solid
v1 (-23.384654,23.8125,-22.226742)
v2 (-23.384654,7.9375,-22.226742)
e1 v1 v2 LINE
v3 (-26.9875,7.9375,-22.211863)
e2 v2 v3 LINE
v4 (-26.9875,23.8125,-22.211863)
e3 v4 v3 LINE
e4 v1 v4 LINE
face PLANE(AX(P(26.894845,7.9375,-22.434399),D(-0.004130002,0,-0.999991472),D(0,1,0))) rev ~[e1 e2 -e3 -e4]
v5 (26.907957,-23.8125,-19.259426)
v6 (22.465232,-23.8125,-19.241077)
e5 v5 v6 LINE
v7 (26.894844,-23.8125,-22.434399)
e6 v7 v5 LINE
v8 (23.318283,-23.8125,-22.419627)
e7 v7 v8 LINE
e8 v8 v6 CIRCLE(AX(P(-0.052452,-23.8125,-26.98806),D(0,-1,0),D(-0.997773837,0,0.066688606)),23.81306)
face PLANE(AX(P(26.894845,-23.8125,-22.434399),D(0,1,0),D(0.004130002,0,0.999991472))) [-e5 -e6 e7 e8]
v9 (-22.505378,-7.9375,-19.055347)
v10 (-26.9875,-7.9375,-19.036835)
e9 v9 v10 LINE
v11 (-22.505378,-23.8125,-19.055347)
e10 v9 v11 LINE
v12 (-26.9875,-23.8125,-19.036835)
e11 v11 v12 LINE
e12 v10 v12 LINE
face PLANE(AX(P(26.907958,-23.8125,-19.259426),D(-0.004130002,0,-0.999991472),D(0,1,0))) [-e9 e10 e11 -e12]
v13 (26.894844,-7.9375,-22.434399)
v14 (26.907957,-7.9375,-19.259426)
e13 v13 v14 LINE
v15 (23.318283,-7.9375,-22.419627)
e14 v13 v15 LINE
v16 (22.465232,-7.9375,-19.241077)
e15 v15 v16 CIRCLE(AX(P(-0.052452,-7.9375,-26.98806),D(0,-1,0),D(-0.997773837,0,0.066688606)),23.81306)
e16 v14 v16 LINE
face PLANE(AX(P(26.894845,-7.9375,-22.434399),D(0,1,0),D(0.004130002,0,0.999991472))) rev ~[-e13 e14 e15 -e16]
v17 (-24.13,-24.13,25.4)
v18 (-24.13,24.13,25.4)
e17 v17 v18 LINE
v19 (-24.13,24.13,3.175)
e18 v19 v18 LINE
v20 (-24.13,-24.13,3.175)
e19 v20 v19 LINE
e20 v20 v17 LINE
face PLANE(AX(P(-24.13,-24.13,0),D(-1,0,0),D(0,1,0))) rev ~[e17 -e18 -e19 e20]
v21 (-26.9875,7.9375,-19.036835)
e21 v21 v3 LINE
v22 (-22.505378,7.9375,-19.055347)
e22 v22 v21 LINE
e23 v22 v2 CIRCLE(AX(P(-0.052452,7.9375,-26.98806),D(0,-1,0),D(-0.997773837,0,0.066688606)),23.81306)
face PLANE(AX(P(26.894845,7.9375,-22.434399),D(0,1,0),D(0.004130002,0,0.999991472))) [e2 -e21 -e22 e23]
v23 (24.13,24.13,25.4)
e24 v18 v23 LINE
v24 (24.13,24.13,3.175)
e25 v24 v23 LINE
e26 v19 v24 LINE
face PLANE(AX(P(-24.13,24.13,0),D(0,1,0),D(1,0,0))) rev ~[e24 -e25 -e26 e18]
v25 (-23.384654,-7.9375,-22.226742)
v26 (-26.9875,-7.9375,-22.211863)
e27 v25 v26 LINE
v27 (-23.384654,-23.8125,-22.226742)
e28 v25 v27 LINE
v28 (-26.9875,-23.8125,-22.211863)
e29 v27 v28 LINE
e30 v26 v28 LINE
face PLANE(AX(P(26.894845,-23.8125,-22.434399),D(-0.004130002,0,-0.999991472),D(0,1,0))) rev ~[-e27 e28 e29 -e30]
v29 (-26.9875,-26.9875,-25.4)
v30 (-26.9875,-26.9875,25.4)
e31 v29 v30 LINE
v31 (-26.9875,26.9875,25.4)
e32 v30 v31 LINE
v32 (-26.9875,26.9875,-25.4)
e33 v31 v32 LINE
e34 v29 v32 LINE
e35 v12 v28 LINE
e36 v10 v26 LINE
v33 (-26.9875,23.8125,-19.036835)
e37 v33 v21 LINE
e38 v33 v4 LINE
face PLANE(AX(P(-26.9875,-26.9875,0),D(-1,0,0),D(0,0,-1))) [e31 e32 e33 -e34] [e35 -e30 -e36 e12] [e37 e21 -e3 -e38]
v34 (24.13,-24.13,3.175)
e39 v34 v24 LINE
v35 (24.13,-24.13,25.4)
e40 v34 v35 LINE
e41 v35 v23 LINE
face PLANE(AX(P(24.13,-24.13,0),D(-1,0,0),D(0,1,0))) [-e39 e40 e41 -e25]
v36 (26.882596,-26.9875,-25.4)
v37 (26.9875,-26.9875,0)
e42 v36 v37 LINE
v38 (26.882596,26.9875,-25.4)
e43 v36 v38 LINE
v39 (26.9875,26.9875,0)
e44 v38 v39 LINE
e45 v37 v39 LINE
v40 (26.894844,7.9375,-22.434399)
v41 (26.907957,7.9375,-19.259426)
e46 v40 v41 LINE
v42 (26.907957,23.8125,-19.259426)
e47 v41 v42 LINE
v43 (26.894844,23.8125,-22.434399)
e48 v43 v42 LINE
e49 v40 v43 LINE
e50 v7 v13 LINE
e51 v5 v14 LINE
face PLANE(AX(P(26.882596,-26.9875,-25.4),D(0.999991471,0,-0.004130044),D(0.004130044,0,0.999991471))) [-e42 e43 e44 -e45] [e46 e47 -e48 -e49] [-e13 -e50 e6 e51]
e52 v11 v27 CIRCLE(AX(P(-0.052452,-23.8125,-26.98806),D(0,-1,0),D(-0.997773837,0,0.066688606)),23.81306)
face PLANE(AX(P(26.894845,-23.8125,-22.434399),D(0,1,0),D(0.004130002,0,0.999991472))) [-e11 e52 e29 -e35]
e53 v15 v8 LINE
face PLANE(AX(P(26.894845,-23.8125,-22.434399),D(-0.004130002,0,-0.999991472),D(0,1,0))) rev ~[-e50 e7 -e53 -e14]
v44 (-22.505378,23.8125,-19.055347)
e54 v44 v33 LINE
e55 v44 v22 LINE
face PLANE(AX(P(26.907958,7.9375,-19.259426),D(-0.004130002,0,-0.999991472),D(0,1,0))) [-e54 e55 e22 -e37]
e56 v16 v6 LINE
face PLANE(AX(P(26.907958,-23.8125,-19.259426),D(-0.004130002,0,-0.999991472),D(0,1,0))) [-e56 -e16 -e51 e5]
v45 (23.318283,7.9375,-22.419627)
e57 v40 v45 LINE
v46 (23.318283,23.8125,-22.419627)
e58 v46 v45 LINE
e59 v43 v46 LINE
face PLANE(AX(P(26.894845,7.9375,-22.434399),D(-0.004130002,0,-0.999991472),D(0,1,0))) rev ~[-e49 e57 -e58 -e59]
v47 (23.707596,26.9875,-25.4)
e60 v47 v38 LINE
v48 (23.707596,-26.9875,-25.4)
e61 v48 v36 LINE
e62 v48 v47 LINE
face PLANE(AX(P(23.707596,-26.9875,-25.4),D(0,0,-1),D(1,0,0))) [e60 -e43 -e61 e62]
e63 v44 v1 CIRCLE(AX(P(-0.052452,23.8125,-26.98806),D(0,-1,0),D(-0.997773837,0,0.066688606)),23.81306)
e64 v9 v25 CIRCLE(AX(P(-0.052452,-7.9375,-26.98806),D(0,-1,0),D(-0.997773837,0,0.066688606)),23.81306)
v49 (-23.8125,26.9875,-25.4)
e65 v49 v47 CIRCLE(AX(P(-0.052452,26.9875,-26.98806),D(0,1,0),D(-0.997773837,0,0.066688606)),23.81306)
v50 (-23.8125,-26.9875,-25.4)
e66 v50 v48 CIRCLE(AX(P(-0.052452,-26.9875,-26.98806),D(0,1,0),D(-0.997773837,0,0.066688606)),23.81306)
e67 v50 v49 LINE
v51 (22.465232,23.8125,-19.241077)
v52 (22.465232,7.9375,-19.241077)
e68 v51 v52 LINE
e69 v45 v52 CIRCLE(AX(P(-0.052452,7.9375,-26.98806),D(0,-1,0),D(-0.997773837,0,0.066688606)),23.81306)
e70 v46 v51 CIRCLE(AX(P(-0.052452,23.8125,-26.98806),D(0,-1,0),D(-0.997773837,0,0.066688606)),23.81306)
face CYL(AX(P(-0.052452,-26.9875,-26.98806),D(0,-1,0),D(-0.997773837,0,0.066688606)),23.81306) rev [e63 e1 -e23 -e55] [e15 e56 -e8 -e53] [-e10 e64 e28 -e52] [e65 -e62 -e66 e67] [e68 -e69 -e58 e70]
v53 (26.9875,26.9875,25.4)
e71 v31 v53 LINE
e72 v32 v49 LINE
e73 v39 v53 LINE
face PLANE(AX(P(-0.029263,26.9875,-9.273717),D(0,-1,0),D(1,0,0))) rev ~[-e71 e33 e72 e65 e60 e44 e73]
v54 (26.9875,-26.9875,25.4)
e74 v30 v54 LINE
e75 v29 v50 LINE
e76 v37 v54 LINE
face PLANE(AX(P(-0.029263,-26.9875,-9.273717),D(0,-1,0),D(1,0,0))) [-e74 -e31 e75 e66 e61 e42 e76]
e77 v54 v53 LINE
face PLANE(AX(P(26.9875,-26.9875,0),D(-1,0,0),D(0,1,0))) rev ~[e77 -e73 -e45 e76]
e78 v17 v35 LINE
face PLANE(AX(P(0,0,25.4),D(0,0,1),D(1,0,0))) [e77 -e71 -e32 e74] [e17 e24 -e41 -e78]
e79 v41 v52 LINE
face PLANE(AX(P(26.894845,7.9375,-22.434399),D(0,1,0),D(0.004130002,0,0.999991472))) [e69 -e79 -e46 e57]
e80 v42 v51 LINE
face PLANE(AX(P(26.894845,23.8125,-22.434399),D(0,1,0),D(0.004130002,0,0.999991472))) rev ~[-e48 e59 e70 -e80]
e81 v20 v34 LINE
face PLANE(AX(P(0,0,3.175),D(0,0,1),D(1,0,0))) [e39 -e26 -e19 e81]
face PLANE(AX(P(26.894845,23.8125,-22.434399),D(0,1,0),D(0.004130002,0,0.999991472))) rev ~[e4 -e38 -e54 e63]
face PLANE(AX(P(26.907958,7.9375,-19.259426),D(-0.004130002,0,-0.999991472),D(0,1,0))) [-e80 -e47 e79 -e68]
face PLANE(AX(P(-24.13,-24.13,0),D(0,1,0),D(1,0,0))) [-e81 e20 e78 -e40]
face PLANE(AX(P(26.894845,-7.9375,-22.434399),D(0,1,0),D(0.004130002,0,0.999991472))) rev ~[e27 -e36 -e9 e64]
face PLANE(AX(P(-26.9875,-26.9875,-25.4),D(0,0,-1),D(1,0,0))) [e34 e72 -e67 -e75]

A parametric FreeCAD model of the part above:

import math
import FreeCAD as App
import Part
import Sketcher

V = App.Vector
Q = App.Units.Quantity


def add_polygon(sketch, points):
    """Adds a closed chain of lines whose ends are joined by coincident constraints."""
    first, n = sketch.GeometryCount, len(points)
    for a, b in zip(points, points[1:] + points[:1]):
        sketch.addGeometry(Part.LineSegment(App.Vector(*a, 0), App.Vector(*b, 0)), False)
    for i in range(n):
        sketch.addConstraint(Sketcher.Constraint("Coincident", first + i, 2, first + (i + 1) % n, 1))

doc = App.newDocument("Part")
body = doc.addObject("PartDesign::Body", "Body")

# Sketch on XY plane
sketch1 = body.newObject("Sketcher::SketchObject", "Sketch")
sketch1.AttachmentSupport = (doc.getObject("XY_Plane"), [""])
sketch1.MapMode = "FlatFace"
add_polygon(sketch1, [(-24, 24), (-24, -24), (24, -24), (24, 24)])  # lines 0-3
sketch1.addConstraint([
    Sketcher.Constraint("Vertical", 0),
    Sketcher.Constraint("Horizontal", 1),
    Sketcher.Constraint("Vertical", 2),
    Sketcher.Constraint("Horizontal", 3),
    Sketcher.Constraint("Symmetric", 0, 2, 2, 2, -1, 1),
    Sketcher.Constraint("Equal", 3, 0),
    Sketcher.Constraint("DistanceX", 1, 1, 1, 2, Q("1.9 in")),
])
pad1 = body.newObject("PartDesign::Pad", "Pad")
pad1.Profile = sketch1
pad1.Length = Q("0.125 in")

# Sketch on XY plane
sketch2 = body.newObject("Sketcher::SketchObject", "Sketch001")
sketch2.AttachmentSupport = (doc.getObject("XY_Plane"), [""])
sketch2.MapMode = "FlatFace"
add_polygon(sketch2, [(-27, 27), (-27, -27), (27, -27), (27, 27)])  # lines 0-3
add_polygon(sketch2, [(24, -24), (-24, -24), (-24, 24), (24, 24)])  # lines 4-7
sketch2.addConstraint([
    Sketcher.Constraint("Vertical", 0),
    Sketcher.Constraint("Horizontal", 1),
    Sketcher.Constraint("Vertical", 2),
    Sketcher.Constraint("Horizontal", 3),
    Sketcher.Constraint("Horizontal", 4),
    Sketcher.Constraint("Vertical", 5),
    Sketcher.Constraint("Horizontal", 6),
    Sketcher.Constraint("Vertical", 7),
    Sketcher.Constraint("Symmetric", 0, 2, 2, 2, -1, 1),
    Sketcher.Constraint("Symmetric", 4, 2, 6, 2, -1, 1),
    Sketcher.Constraint("Equal", 3, 0),
    Sketcher.Constraint("Equal", 6, 5),
    Sketcher.Constraint("DistanceX", 4, 2, 4, 1, Q("1.9 in")),
    Sketcher.Constraint("DistanceX", 1, 1, 1, 2, Q("2.125 in")),
])
pad2 = body.newObject("PartDesign::Pad", "Pad001")
pad2.Profile = sketch2
pad2.Length = Q("1 in")

# Sketch on XZ plane
sketch3 = body.newObject("Sketcher::SketchObject", "Sketch002")
sketch3.AttachmentSupport = (doc.getObject("XZ_Plane"), [""])
sketch3.MapMode = "FlatFace"
sketch3.AttachmentOffset = App.Placement(V(0, 0, 1.0625 * 25.4), App.Rotation())
sketch3.addGeometry([
    Part.LineSegment(V(27, 0, 0), V(-27, 0, 0)),  # 0
    Part.LineSegment(V(-27, 0, 0), V(-27, -25.4, 0)),  # 1
    Part.LineSegment(V(-27, -25.4, 0), V(-23.8, -25.4, 0)),  # 2
    Part.ArcOfCircle(Part.Circle(V(-0.1, -27, 0), V(0, 0, 1), 23.8), math.radians(4), math.radians(176)),  # 3
    Part.LineSegment(V(23.7, -25.4, 0), V(26.9, -25.4, 0)),  # 4
    Part.LineSegment(V(26.9, -25.4, 0), V(27, 0, 0)),  # 5
], False)
sketch3.addConstraint([
    Sketcher.Constraint("Coincident", 0, 2, 1, 1),
    Sketcher.Constraint("Coincident", 1, 2, 2, 1),
    Sketcher.Constraint("Coincident", 2, 2, 3, 2),
    Sketcher.Constraint("Coincident", 3, 1, 4, 1),
    Sketcher.Constraint("Coincident", 4, 2, 5, 1),
    Sketcher.Constraint("Coincident", 5, 2, 0, 1),
    Sketcher.Constraint("Horizontal", 0),
    Sketcher.Constraint("Vertical", 1),
    Sketcher.Constraint("Horizontal", 2),
    Sketcher.Constraint("Horizontal", 4),
    Sketcher.Constraint("Symmetric", 0, 2, 5, 2, -1, 1),
    Sketcher.Constraint("Horizontal", 2, 2, 3, 1),
    Sketcher.Constraint("Equal", 2, 4),
    Sketcher.Constraint("DistanceY", 1, 2, 1, 1, Q("1 in")),
    Sketcher.Constraint("DistanceX", 2, 2, 5, 2, Q("2 in")),
    Sketcher.Constraint("DistanceX", 0, 2, 0, 1, Q("2.125 in")),
    Sketcher.Constraint("Radius", 3, Q("23.81306 mm")),
    Sketcher.Constraint("DistanceY", 3, 3, -1, 1, Q("26.98806 mm")),
])
pad3 = body.newObject("PartDesign::Pad", "Pad002")
pad3.Profile = sketch3
pad3.Length = Q("2.125 in")
pad3.Reversed = True

# Sketch on an angled plane
sketch4 = body.newObject("Sketcher::SketchObject", "Sketch003")
sketch4.Placement = App.Placement(V(26.98704, 0, -0.111459), App.Rotation(V(0, 1, 0), V(0.004130002, 0, 0.999991472), V(0.999991472, 0, -0.004130002), "ZXY"))
add_polygon(sketch4, [(-23.8, -19.1), (-23.8, -22.3), (-7.9, -22.3), (-7.9, -19.1)])  # lines 0-3
add_polygon(sketch4, [(7.9, -19.1), (7.9, -22.3), (23.8, -22.3), (23.8, -19.1)])  # lines 4-7
sketch4.addConstraint([
    Sketcher.Constraint("Vertical", 0),
    Sketcher.Constraint("Horizontal", 1),
    Sketcher.Constraint("Vertical", 2),
    Sketcher.Constraint("Horizontal", 3),
    Sketcher.Constraint("Vertical", 4),
    Sketcher.Constraint("Horizontal", 5),
    Sketcher.Constraint("Vertical", 6),
    Sketcher.Constraint("Horizontal", 7),
    Sketcher.Constraint("Symmetric", 1, 2, 4, 2, -2),
    Sketcher.Constraint("Symmetric", 3, 2, 6, 2, -2),
    Sketcher.Constraint("DistanceX", 1, 1, 1, 2, Q("0.625 in")),
    Sketcher.Constraint("DistanceY", 0, 2, 0, 1, Q("0.125 in")),
    Sketcher.Constraint("DistanceX", 0, 2, 4, 2, Q("1.25 in")),
    Sketcher.Constraint("DistanceY", 0, 2, -1, 1, Q("22.32313 mm")),
])
pocket1 = body.newObject("PartDesign::Pocket", "Pocket")
pocket1.Profile = sketch4
pocket1.Length = Q("2.5 in")

doc.recompute()
